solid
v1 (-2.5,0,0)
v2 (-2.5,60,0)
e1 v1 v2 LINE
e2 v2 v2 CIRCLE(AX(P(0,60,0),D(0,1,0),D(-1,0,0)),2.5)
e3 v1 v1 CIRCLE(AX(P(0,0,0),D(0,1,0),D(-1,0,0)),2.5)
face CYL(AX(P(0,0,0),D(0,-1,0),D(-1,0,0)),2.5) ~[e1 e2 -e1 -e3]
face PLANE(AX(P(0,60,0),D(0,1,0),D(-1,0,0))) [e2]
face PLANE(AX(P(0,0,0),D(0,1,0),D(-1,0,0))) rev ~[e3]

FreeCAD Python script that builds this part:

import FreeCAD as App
import Part
import Sketcher

doc = App.newDocument("Part")
params = doc.addObject("Spreadsheet::Sheet", "Params")
for row, (alias, value) in enumerate([
    ("sketch1_diameter", "5 mm"),
    ("pad1_length", "60 mm"),
], start=1):
    params.set(f"A{row}", alias)
    params.set(f"B{row}", "=" + value)
    params.setAlias(f"B{row}", alias)

body = doc.addObject("PartDesign::Body", "Body")

sketch1 = body.newObject("Sketcher::SketchObject", "Sketch")
sketch1.AttachmentSupport = (doc.getObject("XZ_Plane"), [""])
sketch1.MapMode = "FlatFace"
sketch1.addGeometry(Part.Circle(App.Vector(0, 0, 0), App.Vector(0, 0, 1), 2.5), False)
sketch1.addConstraint(Sketcher.Constraint("Coincident", 0, 3, -1, 1))
sketch1.addConstraint(Sketcher.Constraint("Diameter", 0, 5.0))
sketch1.setExpression("Constraints[1]", "Params.sketch1_diameter")
pad1 = body.newObject("PartDesign::Pad", "Pad")
pad1.Profile = sketch1
pad1.setExpression("Length", "Params.pad1_length")
pad1.Reversed = True

doc.recompute()
